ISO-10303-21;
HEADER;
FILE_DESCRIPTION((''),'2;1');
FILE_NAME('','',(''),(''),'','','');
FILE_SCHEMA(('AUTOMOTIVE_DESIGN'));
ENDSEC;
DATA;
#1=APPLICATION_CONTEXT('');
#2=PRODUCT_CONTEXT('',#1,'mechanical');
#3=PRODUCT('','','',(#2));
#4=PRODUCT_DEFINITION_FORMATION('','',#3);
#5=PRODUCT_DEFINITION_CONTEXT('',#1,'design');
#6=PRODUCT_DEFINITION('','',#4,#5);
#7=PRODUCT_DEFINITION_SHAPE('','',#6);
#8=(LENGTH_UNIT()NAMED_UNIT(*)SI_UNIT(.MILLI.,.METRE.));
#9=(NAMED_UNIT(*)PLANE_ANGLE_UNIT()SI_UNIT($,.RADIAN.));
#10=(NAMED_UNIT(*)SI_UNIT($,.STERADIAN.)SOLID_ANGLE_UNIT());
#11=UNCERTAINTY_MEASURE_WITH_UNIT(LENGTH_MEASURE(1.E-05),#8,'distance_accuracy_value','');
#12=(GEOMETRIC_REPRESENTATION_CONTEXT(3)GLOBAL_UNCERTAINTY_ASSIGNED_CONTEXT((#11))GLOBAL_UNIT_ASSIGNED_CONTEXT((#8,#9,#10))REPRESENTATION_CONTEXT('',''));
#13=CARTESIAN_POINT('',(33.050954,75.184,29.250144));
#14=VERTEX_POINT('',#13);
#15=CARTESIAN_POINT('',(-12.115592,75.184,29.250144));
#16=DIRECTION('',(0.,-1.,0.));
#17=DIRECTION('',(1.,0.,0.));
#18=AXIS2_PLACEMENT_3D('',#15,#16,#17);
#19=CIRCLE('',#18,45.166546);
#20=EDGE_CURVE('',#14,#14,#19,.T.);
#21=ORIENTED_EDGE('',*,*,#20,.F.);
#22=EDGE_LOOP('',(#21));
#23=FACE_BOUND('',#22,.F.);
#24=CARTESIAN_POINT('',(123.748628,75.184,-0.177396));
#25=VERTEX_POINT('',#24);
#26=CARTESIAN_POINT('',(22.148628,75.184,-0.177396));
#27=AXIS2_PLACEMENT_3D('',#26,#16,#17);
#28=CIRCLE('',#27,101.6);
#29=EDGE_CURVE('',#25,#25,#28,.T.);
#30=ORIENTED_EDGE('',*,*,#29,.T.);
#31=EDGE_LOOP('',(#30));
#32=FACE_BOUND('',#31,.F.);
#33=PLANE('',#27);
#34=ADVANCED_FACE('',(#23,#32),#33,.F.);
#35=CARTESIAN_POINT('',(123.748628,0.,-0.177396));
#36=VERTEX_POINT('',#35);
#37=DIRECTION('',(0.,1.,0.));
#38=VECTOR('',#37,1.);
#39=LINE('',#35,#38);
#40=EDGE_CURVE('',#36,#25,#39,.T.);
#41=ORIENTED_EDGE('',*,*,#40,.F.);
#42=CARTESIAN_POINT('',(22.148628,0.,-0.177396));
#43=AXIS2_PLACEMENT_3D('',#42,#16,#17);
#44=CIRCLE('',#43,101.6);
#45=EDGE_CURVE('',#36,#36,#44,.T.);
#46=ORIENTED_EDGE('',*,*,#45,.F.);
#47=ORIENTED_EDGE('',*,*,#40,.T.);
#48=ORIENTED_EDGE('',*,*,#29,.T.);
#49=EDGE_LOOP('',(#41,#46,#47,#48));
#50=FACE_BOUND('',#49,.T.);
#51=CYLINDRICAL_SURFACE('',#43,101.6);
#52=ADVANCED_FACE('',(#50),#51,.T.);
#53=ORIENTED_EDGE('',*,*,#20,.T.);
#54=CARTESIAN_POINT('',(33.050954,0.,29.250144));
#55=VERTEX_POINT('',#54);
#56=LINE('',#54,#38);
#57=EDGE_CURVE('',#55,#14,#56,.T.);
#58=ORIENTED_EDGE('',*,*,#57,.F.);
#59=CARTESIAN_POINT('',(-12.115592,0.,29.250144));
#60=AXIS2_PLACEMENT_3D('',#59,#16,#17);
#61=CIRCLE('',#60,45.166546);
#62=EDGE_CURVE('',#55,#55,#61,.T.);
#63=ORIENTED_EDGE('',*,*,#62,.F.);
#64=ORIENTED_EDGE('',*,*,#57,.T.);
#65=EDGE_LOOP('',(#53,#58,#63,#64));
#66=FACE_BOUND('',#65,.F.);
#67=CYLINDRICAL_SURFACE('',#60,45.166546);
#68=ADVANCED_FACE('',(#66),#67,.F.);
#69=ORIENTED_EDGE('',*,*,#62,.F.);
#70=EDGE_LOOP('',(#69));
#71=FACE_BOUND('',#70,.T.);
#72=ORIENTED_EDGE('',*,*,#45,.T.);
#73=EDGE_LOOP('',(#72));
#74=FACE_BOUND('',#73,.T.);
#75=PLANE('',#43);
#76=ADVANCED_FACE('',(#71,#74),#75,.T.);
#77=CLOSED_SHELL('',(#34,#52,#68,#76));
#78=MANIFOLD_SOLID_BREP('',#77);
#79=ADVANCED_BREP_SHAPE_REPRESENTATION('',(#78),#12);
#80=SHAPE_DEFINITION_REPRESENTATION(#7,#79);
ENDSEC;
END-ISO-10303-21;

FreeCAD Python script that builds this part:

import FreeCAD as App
import Part
import Sketcher
Q = App.Units.Quantity

doc = App.newDocument("Part")
body = doc.addObject("PartDesign::Body", "Body")

# Sketch on XZ plane
sketch1 = body.newObject("Sketcher::SketchObject", "Sketch")
sketch1.AttachmentSupport = (doc.getObject("XZ_Plane"), [""])
sketch1.MapMode = "FlatFace"
sketch1.addGeometry(Part.Circle(App.Vector(22.148628, -0.177396, 0), App.Vector(0, 0, 1), 101.6), False)
sketch1.addGeometry(Part.Circle(App.Vector(-12.115592, 29.250144, 0), App.Vector(0, 0, 1), 45.166546), False)
sketch1.addConstraint(Sketcher.Constraint("Diameter", 0, Q("8 in")))
sketch1.addConstraint(Sketcher.Constraint("Diameter", 1, Q("90.333092 mm")))
sketch1.addConstraint(Sketcher.Constraint("DistanceX", 1, 3, 0, 3, Q("34.26422 mm")))
sketch1.addConstraint(Sketcher.Constraint("DistanceY", 0, 3, 1, 3, Q("29.42754 mm")))
sketch1.addConstraint(Sketcher.Constraint("DistanceX", -1, 1, 0, 3, Q("22.148628 mm")))
sketch1.addConstraint(Sketcher.Constraint("DistanceY", 0, 3, -1, 1, Q("0.177396 mm")))
pad1 = body.newObject("PartDesign::Pad", "Pad")
pad1.Profile = sketch1
pad1.Length = Q("2.96 in")
pad1.Reversed = True

doc.recompute()
